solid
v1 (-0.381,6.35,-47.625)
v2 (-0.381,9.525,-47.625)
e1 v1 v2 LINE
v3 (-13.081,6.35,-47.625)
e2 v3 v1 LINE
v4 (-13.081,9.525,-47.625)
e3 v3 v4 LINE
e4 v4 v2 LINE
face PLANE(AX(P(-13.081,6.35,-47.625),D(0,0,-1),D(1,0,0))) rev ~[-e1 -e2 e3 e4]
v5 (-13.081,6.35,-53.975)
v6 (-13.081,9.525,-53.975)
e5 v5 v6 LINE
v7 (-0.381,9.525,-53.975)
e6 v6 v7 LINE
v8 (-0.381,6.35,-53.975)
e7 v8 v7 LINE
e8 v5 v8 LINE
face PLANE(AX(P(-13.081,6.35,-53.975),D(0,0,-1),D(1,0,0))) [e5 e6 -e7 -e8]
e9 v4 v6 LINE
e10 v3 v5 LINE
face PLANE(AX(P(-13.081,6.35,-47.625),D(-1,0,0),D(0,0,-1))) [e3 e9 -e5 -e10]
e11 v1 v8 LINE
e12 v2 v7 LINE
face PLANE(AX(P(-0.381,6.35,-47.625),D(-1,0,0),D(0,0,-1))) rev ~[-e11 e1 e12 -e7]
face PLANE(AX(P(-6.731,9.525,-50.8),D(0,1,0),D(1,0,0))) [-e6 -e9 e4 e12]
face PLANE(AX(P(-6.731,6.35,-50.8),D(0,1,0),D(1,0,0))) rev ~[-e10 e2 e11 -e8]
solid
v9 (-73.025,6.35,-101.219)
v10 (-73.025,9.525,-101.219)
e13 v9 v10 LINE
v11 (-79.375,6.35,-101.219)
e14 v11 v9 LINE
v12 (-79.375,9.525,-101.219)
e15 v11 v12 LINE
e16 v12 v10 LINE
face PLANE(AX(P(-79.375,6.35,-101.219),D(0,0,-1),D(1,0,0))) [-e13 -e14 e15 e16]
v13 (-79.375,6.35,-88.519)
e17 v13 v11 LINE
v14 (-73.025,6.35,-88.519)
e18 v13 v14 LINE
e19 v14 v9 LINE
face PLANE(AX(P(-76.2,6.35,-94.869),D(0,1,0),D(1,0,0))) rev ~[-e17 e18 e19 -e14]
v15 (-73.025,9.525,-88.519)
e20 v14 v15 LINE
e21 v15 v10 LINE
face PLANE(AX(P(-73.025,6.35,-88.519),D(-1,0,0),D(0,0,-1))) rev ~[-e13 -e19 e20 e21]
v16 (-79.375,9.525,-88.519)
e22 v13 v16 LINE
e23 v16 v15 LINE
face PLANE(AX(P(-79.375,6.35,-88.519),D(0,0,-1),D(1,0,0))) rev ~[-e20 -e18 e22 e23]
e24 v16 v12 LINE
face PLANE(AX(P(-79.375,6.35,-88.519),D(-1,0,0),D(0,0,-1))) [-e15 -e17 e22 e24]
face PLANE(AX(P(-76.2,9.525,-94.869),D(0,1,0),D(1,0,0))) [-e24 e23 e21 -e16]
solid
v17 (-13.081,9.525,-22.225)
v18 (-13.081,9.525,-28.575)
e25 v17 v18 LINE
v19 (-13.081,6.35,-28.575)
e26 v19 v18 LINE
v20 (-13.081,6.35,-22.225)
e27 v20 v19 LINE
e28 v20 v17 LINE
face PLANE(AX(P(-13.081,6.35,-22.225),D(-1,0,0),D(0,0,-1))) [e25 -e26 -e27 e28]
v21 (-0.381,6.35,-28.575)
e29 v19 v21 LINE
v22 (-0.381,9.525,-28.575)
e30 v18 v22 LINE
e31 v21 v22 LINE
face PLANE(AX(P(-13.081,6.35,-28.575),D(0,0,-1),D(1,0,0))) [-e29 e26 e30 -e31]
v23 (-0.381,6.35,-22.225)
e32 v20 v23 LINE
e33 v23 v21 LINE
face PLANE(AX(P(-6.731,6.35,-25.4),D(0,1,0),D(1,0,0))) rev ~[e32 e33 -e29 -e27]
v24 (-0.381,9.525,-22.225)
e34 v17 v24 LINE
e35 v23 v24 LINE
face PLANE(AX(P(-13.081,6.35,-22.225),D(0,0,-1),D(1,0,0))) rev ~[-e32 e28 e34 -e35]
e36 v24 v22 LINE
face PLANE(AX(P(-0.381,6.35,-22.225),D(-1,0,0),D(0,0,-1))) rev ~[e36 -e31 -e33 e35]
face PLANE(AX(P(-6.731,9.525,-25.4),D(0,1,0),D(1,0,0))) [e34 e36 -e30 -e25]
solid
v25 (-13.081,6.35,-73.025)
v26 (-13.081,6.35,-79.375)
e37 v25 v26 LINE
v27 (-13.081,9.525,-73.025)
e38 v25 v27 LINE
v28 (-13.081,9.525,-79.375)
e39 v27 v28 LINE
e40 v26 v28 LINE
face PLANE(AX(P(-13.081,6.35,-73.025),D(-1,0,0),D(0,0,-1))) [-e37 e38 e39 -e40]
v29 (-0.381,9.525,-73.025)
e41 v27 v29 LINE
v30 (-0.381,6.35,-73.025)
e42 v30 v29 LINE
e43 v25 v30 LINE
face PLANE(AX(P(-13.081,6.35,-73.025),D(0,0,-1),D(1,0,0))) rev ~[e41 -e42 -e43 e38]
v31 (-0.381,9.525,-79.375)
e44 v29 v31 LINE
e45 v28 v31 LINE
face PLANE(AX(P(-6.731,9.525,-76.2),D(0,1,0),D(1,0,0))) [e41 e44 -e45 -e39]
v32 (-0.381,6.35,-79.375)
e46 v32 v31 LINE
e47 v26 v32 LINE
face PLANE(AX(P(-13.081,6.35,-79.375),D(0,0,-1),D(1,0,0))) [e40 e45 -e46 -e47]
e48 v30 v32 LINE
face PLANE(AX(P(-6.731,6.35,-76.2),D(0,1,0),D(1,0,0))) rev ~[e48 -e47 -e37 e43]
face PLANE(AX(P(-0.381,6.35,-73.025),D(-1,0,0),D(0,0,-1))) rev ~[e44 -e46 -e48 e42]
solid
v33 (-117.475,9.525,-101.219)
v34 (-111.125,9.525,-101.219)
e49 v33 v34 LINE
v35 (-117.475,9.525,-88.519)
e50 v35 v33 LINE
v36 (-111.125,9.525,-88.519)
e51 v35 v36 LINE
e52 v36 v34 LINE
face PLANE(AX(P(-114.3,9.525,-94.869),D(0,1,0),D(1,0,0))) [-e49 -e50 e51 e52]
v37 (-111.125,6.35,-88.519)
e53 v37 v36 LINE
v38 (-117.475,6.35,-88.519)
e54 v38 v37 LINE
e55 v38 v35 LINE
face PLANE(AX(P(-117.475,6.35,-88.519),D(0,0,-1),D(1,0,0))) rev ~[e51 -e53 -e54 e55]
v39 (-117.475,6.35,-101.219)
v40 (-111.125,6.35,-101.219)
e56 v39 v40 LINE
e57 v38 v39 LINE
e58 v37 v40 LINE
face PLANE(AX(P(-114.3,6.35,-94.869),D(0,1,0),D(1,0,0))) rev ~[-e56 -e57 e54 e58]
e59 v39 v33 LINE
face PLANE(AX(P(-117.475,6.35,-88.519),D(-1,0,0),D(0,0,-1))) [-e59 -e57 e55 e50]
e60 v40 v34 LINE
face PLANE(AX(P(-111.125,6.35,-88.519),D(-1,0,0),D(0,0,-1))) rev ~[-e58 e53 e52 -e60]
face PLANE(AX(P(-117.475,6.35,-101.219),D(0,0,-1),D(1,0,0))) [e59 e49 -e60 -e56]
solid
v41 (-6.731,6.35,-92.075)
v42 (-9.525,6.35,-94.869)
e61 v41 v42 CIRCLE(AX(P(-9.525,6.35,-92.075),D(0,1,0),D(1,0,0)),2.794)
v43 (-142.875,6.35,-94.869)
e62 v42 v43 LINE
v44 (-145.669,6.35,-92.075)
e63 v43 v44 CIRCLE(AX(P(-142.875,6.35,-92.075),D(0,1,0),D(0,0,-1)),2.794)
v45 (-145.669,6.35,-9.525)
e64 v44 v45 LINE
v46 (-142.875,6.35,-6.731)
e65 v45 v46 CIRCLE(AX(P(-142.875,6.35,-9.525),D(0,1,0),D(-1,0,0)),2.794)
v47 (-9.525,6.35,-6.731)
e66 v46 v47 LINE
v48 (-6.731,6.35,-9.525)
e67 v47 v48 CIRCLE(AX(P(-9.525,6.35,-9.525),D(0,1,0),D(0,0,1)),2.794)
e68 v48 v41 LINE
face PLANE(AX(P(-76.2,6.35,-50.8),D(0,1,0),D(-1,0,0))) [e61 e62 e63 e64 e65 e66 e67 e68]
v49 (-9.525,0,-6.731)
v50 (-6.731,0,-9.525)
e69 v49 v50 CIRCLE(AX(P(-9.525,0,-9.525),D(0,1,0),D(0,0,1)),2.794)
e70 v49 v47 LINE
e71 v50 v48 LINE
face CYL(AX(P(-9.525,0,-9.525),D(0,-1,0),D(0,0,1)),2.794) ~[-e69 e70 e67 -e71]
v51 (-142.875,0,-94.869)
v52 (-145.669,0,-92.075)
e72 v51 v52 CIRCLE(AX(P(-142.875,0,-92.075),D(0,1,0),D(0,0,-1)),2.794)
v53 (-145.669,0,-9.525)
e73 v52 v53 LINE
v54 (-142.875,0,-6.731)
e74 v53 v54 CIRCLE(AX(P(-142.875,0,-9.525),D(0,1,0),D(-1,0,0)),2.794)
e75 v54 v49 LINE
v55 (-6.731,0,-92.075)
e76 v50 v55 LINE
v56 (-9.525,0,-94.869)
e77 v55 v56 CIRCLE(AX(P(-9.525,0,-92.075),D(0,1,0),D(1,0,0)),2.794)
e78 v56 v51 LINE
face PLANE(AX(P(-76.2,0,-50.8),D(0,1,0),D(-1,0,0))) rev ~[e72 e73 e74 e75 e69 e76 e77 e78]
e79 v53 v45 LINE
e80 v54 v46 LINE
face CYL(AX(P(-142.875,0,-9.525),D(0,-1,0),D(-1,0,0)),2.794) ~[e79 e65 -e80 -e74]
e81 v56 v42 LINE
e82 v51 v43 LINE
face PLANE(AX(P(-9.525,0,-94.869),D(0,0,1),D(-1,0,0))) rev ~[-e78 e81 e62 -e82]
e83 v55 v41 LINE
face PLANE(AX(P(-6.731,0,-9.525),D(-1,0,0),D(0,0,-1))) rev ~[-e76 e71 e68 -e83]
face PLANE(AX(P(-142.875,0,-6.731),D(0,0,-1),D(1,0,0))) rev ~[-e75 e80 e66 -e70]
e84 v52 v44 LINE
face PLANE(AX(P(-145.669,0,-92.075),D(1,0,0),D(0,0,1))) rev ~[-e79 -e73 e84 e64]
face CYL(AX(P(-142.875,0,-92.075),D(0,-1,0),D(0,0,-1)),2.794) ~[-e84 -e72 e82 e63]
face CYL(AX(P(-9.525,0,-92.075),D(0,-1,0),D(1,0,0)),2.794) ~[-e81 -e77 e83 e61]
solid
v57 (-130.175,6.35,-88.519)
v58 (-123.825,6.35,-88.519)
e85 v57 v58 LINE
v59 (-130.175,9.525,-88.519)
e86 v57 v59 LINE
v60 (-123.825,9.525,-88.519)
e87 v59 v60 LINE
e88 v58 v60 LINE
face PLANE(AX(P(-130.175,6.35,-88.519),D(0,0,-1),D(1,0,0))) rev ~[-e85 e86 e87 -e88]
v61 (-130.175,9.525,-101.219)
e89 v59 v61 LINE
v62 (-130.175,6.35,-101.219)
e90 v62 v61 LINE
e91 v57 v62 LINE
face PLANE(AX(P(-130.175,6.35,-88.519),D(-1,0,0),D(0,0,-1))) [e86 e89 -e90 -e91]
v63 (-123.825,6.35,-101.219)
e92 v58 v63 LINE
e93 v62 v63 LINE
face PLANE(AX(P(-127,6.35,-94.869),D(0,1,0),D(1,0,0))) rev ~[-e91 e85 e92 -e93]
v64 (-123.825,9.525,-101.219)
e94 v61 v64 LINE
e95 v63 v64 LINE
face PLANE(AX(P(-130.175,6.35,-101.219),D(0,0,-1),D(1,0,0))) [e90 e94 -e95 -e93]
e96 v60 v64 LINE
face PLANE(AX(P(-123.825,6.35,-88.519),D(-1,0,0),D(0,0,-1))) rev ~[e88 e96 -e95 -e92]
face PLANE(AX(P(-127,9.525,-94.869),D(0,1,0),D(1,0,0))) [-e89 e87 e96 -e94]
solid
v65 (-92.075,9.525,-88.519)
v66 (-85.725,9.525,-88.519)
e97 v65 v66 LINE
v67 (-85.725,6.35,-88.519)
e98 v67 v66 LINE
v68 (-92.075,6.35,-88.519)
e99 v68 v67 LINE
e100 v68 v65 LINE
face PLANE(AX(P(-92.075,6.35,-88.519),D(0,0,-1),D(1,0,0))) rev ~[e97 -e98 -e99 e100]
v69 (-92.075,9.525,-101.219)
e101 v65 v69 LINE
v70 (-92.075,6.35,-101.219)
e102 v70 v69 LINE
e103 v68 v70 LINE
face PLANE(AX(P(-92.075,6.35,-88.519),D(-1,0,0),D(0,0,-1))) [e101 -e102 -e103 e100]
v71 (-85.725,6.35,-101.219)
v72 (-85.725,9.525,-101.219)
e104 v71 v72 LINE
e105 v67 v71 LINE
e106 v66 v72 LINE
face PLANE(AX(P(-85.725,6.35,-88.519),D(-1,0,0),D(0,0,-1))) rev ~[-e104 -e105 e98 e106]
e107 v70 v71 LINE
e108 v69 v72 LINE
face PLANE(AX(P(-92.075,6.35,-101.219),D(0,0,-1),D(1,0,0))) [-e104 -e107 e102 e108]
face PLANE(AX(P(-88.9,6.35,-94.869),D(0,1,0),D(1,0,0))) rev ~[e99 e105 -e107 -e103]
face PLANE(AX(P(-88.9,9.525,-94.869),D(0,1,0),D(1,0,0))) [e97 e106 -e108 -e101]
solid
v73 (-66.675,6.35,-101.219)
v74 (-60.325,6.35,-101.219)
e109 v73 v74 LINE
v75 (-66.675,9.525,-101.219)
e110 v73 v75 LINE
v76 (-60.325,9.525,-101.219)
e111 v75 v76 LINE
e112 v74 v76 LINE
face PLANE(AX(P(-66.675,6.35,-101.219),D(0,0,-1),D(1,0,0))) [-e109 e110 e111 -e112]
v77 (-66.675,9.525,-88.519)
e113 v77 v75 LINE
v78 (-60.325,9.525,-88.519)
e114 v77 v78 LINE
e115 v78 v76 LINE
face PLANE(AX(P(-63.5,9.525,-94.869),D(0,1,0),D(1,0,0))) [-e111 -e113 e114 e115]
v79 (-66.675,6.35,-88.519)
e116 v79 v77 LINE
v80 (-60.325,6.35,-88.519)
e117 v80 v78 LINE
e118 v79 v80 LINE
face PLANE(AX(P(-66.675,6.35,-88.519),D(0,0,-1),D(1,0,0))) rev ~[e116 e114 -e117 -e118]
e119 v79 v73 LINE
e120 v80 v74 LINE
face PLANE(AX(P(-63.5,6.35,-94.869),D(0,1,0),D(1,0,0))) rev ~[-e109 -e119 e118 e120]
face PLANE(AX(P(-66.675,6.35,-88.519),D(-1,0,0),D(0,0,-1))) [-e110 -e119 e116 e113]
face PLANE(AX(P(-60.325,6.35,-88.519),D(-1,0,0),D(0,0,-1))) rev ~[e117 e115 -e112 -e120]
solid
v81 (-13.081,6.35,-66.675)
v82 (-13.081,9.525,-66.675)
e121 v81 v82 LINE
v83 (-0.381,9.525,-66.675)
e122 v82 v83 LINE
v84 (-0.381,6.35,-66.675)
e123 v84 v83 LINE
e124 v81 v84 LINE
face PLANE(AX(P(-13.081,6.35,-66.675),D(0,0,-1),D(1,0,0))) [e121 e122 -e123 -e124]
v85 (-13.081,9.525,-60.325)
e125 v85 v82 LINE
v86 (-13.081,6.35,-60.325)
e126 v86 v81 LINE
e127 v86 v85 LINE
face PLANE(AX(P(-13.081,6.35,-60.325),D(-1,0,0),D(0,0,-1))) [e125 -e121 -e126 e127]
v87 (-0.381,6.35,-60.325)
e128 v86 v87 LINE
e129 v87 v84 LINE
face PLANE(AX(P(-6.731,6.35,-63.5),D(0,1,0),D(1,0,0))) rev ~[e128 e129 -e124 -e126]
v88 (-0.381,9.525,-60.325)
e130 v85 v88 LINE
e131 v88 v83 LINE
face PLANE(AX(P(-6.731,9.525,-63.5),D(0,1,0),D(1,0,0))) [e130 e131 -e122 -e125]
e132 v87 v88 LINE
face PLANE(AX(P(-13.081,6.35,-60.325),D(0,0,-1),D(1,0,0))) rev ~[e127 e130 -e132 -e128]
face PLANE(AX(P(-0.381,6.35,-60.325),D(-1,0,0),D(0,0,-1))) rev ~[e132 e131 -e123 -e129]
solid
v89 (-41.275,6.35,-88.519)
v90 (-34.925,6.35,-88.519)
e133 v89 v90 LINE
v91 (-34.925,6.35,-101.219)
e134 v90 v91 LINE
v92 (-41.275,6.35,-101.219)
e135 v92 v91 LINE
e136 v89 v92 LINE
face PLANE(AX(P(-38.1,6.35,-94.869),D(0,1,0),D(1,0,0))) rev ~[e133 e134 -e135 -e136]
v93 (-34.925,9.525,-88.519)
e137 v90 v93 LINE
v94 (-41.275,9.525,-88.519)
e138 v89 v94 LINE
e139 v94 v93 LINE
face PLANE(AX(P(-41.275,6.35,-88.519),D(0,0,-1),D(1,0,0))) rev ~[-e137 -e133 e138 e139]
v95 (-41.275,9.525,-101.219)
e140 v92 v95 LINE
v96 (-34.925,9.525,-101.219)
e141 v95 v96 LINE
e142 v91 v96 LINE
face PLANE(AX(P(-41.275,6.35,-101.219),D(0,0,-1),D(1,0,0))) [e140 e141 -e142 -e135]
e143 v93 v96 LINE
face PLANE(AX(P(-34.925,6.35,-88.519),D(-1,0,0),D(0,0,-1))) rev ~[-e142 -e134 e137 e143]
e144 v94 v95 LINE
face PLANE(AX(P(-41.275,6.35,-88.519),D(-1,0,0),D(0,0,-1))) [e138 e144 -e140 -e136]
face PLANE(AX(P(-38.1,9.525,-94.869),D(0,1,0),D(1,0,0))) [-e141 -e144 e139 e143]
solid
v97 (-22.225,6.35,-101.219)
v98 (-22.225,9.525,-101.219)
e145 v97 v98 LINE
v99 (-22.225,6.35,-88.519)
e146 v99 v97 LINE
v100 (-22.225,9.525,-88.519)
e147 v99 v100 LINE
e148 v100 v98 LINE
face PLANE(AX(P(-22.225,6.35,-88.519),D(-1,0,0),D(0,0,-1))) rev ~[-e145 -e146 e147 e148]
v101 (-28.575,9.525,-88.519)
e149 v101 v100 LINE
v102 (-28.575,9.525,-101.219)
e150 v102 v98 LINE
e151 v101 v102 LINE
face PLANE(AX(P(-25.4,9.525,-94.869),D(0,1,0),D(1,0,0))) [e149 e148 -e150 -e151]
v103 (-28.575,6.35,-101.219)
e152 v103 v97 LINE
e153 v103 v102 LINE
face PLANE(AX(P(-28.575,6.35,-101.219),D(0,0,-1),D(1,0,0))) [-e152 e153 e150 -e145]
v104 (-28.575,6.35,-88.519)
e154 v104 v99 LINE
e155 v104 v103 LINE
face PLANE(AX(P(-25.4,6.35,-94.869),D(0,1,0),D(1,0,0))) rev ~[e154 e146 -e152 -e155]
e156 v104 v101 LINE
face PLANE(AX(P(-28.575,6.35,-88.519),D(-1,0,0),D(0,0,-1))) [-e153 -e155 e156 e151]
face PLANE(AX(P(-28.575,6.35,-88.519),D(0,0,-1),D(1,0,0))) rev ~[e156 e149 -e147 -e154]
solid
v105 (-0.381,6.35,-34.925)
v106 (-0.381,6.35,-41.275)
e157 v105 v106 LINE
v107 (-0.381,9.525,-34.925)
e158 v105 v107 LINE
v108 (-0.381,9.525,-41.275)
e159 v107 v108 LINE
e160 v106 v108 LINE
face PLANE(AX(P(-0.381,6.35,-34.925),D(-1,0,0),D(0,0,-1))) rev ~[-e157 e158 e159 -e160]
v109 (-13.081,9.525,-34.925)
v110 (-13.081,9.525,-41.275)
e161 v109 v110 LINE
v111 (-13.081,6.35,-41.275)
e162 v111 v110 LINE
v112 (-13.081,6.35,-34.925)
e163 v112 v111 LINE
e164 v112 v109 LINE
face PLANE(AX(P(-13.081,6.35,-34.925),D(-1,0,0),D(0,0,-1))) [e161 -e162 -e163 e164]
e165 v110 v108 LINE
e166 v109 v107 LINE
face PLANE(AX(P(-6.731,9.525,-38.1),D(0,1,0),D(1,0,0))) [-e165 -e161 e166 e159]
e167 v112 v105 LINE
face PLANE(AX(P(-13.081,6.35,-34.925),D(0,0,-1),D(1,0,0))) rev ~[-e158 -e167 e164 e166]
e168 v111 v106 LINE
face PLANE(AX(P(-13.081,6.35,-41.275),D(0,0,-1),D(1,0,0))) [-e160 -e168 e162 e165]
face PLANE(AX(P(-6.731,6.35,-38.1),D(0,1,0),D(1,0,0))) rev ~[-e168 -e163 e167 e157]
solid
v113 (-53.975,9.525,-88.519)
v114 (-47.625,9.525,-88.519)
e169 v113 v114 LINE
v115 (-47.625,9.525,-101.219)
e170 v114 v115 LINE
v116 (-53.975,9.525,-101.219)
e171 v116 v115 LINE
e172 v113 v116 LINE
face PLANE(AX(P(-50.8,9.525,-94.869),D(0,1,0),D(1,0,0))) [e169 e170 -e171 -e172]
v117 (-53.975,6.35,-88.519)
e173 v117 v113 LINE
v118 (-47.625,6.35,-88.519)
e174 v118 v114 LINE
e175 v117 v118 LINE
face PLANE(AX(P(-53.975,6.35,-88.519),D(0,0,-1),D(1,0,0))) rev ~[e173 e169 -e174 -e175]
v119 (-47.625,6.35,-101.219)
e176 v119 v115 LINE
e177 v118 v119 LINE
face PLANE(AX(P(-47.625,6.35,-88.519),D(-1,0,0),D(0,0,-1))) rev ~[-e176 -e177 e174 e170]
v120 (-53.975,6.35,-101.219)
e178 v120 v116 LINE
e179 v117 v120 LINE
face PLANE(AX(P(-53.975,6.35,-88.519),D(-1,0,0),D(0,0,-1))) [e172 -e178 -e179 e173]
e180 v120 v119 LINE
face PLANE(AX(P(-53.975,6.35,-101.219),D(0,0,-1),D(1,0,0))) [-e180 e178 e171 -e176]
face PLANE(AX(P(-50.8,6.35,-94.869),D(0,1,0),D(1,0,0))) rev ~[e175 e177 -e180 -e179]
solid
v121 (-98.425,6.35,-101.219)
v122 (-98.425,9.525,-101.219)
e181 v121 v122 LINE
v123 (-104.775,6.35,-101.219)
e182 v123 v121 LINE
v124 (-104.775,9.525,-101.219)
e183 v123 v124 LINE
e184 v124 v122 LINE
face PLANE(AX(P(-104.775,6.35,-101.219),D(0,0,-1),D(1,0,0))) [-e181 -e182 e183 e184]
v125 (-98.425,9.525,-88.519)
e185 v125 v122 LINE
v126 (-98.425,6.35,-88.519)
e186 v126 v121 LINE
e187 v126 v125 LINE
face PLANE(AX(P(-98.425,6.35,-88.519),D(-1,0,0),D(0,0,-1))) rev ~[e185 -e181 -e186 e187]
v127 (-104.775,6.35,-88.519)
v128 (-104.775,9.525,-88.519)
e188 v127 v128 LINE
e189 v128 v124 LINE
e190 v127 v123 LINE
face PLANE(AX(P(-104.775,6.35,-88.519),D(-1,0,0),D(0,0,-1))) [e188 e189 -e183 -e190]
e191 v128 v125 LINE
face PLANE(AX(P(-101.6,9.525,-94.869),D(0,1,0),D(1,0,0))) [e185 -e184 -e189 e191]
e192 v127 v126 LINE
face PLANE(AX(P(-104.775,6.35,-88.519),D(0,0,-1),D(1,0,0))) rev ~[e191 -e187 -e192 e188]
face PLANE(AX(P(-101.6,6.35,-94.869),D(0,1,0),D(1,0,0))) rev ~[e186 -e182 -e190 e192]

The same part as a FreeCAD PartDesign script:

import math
import FreeCAD as App
import Part
import Sketcher

V = App.Vector
Q = App.Units.Quantity

doc = App.newDocument("Part")
body = doc.addObject("PartDesign::Body", "Body")

# Sketch on XZ plane
sketch1 = body.newObject("Sketcher::SketchObject", "Sketch")
sketch1.AttachmentSupport = (doc.getObject("XZ_Plane"), [""])
sketch1.MapMode = "FlatFace"
sketch1.addGeometry([
    Part.LineSegment(V(-145.7, -92.1, 0), V(-145.7, -9.5, 0)),  # 0
    Part.ArcOfCircle(Part.Circle(V(-142.9, -9.5, 0), V(0, 0, 1), 2.8), math.radians(90), math.radians(180)),  # 1
    Part.LineSegment(V(-142.9, -6.7, 0), V(-9.5, -6.7, 0)),  # 2
    Part.ArcOfCircle(Part.Circle(V(-9.5, -9.5, 0), V(0, 0, 1), 2.8), math.radians(0), math.radians(90)),  # 3
    Part.LineSegment(V(-6.7, -9.5, 0), V(-6.7, -92.1, 0)),  # 4
    Part.ArcOfCircle(Part.Circle(V(-9.5, -92.1, 0), V(0, 0, 1), 2.8), math.radians(-90), math.radians(0)),  # 5
    Part.LineSegment(V(-9.5, -94.9, 0), V(-142.9, -94.9, 0)),  # 6
    Part.ArcOfCircle(Part.Circle(V(-142.9, -92.1, 0), V(0, 0, 1), 2.8), math.radians(180), math.radians(270)),  # 7
], False)
sketch1.addConstraint([
    Sketcher.Constraint("Tangent", 0, 2, 1, 2),
    Sketcher.Constraint("Tangent", 1, 1, 2, 1),
    Sketcher.Constraint("Tangent", 2, 2, 3, 2),
    Sketcher.Constraint("Tangent", 3, 1, 4, 1),
    Sketcher.Constraint("Tangent", 4, 2, 5, 2),
    Sketcher.Constraint("Tangent", 5, 1, 6, 1),
    Sketcher.Constraint("Tangent", 6, 2, 7, 2),
    Sketcher.Constraint("Tangent", 7, 1, 0, 1),
    Sketcher.Constraint("Vertical", 0),
    Sketcher.Constraint("Horizontal", 2),
    Sketcher.Constraint("Vertical", 4),
    Sketcher.Constraint("Horizontal", 6),
    Sketcher.Constraint("Equal", 1, 3),
    Sketcher.Constraint("Equal", 3, 5),
    Sketcher.Constraint("Equal", 5, 7),
    Sketcher.Constraint("Radius", 1, Q("0.11 in")),
    Sketcher.Constraint("DistanceX", 2, 1, 2, 2, Q("5.25 in")),
    Sketcher.Constraint("DistanceY", 0, 1, 0, 2, Q("3.25 in")),
    Sketcher.Constraint("DistanceX", 1, 3, -1, 1, Q("5.625 in")),
    Sketcher.Constraint("DistanceY", 1, 3, -1, 1, Q("0.375 in")),
])
pad1 = body.newObject("PartDesign::Pad", "Pad")
pad1.Profile = sketch1
pad1.Length = Q("0.25 in")
pad1.Reversed = True
body2 = doc.addObject("PartDesign::Body", "Body001")

# Sketch on XZ plane
sketch2 = body2.newObject("Sketcher::SketchObject", "Sketch001")
sketch2.AttachmentSupport = (doc.getObject("XZ_Plane001"), [""])
sketch2.MapMode = "FlatFace"
sketch2.AttachmentOffset = App.Placement(V(0, 0, -0.25 * 25.4), App.Rotation())
sketch2.addGeometry([
    Part.LineSegment(V(-67, -101, 0), V(-67, -89, 0)),
    Part.LineSegment(V(-67, -89, 0), V(-60, -89, 0)),
    Part.LineSegment(V(-60, -89, 0), V(-60, -101, 0)),
    Part.LineSegment(V(-60, -101, 0), V(-67, -101, 0)),
], False)
sketch2.addConstraint([
    Sketcher.Constraint("Coincident", 0, 2, 1, 1),
    Sketcher.Constraint("Coincident", 1, 2, 2, 1),
    Sketcher.Constraint("Coincident", 2, 2, 3, 1),
    Sketcher.Constraint("Coincident", 3, 2, 0, 1),
    Sketcher.Constraint("Vertical", 0),
    Sketcher.Constraint("Horizontal", 1),
    Sketcher.Constraint("Vertical", 2),
    Sketcher.Constraint("Horizontal", 3),
    Sketcher.Constraint("DistanceY", 0, 1, 0, 2, Q("0.5 in")),
    Sketcher.Constraint("DistanceX", 1, 1, 1, 2, Q("0.25 in")),
    Sketcher.Constraint("DistanceX", 0, 2, -1, 1, Q("2.625 in")),
    Sketcher.Constraint("DistanceY", 0, 2, -1, 1, Q("3.485 in")),
])
pad2 = body2.newObject("PartDesign::Pad", "Pad001")
pad2.Profile = sketch2
pad2.Length = Q("0.125 in")
pad2.Reversed = True
body3 = doc.addObject("PartDesign::Body", "Body002")

# Sketch on XZ plane
sketch3 = body3.newObject("Sketcher::SketchObject", "Sketch002")
sketch3.AttachmentSupport = (doc.getObject("XZ_Plane002"), [""])
sketch3.MapMode = "FlatFace"
sketch3.AttachmentOffset = App.Placement(V(0, 0, -0.25 * 25.4), App.Rotation())
sketch3.addGeometry([
    Part.LineSegment(V(-79, -101, 0), V(-79, -89, 0)),
    Part.LineSegment(V(-79, -89, 0), V(-73, -89, 0)),
    Part.LineSegment(V(-73, -89, 0), V(-73, -101, 0)),
    Part.LineSegment(V(-73, -101, 0), V(-79, -101, 0)),
], False)
sketch3.addConstraint([
    Sketcher.Constraint("Coincident", 0, 2, 1, 1),
    Sketcher.Constraint("Coincident", 1, 2, 2, 1),
    Sketcher.Constraint("Coincident", 2, 2, 3, 1),
    Sketcher.Constraint("Coincident", 3, 2, 0, 1),
    Sketcher.Constraint("Vertical", 0),
    Sketcher.Constraint("Horizontal", 1),
    Sketcher.Constraint("Vertical", 2),
    Sketcher.Constraint("Horizontal", 3),
    Sketcher.Constraint("DistanceY", 0, 1, 0, 2, Q("0.5 in")),
    Sketcher.Constraint("DistanceX", 1, 1, 1, 2, Q("0.25 in")),
    Sketcher.Constraint("DistanceX", 0, 2, -1, 1, Q("3.125 in")),
    Sketcher.Constraint("DistanceY", 0, 2, -1, 1, Q("3.485 in")),
])
pad3 = body3.newObject("PartDesign::Pad", "Pad002")
pad3.Profile = sketch3
pad3.Length = Q("0.125 in")
pad3.Reversed = True
body4 = doc.addObject("PartDesign::Body", "Body003")

# Sketch on XZ plane
sketch4 = body4.newObject("Sketcher::SketchObject", "Sketch003")
sketch4.AttachmentSupport = (doc.getObject("XZ_Plane003"), [""])
sketch4.MapMode = "FlatFace"
sketch4.AttachmentOffset = App.Placement(V(0, 0, -0.25 * 25.4), App.Rotation())
sketch4.addGeometry([
    Part.LineSegment(V(-54, -101, 0), V(-54, -89, 0)),
    Part.LineSegment(V(-54, -89, 0), V(-48, -89, 0)),
    Part.LineSegment(V(-48, -89, 0), V(-48, -101, 0)),
    Part.LineSegment(V(-48, -101, 0), V(-54, -101, 0)),
], False)
sketch4.addConstraint([
    Sketcher.Constraint("Coincident", 0, 2, 1, 1),
    Sketcher.Constraint("Coincident", 1, 2, 2, 1),
    Sketcher.Constraint("Coincident", 2, 2, 3, 1),
    Sketcher.Constraint("Coincident", 3, 2, 0, 1),
    Sketcher.Constraint("Vertical", 0),
    Sketcher.Constraint("Horizontal", 1),
    Sketcher.Constraint("Vertical", 2),
    Sketcher.Constraint("Horizontal", 3),
    Sketcher.Constraint("DistanceY", 0, 1, 0, 2, Q("0.5 in")),
    Sketcher.Constraint("DistanceX", 1, 1, 1, 2, Q("0.25 in")),
    Sketcher.Constraint("DistanceX", 0, 2, -1, 1, Q("2.125 in")),
    Sketcher.Constraint("DistanceY", 0, 2, -1, 1, Q("3.485 in")),
])
pad4 = body4.newObject("PartDesign::Pad", "Pad003")
pad4.Profile = sketch4
pad4.Length = Q("0.125 in")
pad4.Reversed = True
body5 = doc.addObject("PartDesign::Body", "Body004")

# Sketch on XZ plane
sketch5 = body5.newObject("Sketcher::SketchObject", "Sketch004")
sketch5.AttachmentSupport = (doc.getObject("XZ_Plane004"), [""])
sketch5.MapMode = "FlatFace"
sketch5.AttachmentOffset = App.Placement(V(0, 0, -0.25 * 25.4), App.Rotation())
sketch5.addGeometry([
    Part.LineSegment(V(-41, -101, 0), V(-41, -89, 0)),
    Part.LineSegment(V(-41, -89, 0), V(-35, -89, 0)),
    Part.LineSegment(V(-35, -89, 0), V(-35, -101, 0)),
    Part.LineSegment(V(-35, -101, 0), V(-41, -101, 0)),
], False)
sketch5.addConstraint([
    Sketcher.Constraint("Coincident", 0, 2, 1, 1),
    Sketcher.Constraint("Coincident", 1, 2, 2, 1),
    Sketcher.Constraint("Coincident", 2, 2, 3, 1),
    Sketcher.Constraint("Coincident", 3, 2, 0, 1),
    Sketcher.Constraint("Vertical", 0),
    Sketcher.Constraint("Horizontal", 1),
    Sketcher.Constraint("Vertical", 2),
    Sketcher.Constraint("Horizontal", 3),
    Sketcher.Constraint("DistanceY", 0, 1, 0, 2, Q("0.5 in")),
    Sketcher.Constraint("DistanceX", 1, 1, 1, 2, Q("0.25 in")),
    Sketcher.Constraint("DistanceX", 0, 2, -1, 1, Q("1.625 in")),
    Sketcher.Constraint("DistanceY", 0, 2, -1, 1, Q("3.485 in")),
])
pad5 = body5.newObject("PartDesign::Pad", "Pad004")
pad5.Profile = sketch5
pad5.Length = Q("0.125 in")
pad5.Reversed = True
body6 = doc.addObject("PartDesign::Body", "Body005")

# Sketch on XZ plane
sketch6 = body6.newObject("Sketcher::SketchObject", "Sketch005")
sketch6.AttachmentSupport = (doc.getObject("XZ_Plane005"), [""])
sketch6.MapMode = "FlatFace"
sketch6.AttachmentOffset = App.Placement(V(0, 0, -0.25 * 25.4), App.Rotation())
sketch6.addGeometry([
    Part.LineSegment(V(-29, -101, 0), V(-29, -89, 0)),
    Part.LineSegment(V(-29, -89, 0), V(-22, -89, 0)),
    Part.LineSegment(V(-22, -89, 0), V(-22, -101, 0)),
    Part.LineSegment(V(-22, -101, 0), V(-29, -101, 0)),
], False)
sketch6.addConstraint([
    Sketcher.Constraint("Coincident", 0, 2, 1, 1),
    Sketcher.Constraint("Coincident", 1, 2, 2, 1),
    Sketcher.Constraint("Coincident", 2, 2, 3, 1),
    Sketcher.Constraint("Coincident", 3, 2, 0, 1),
    Sketcher.Constraint("Vertical", 0),
    Sketcher.Constraint("Horizontal", 1),
    Sketcher.Constraint("Vertical", 2),
    Sketcher.Constraint("Horizontal", 3),
    Sketcher.Constraint("DistanceY", 0, 1, 0, 2, Q("0.5 in")),
    Sketcher.Constraint("DistanceX", 1, 1, 1, 2, Q("0.25 in")),
    Sketcher.Constraint("DistanceX", 0, 2, -1, 1, Q("1.125 in")),
    Sketcher.Constraint("DistanceY", 0, 2, -1, 1, Q("3.485 in")),
])
pad6 = body6.newObject("PartDesign::Pad", "Pad005")
pad6.Profile = sketch6
pad6.Length = Q("0.125 in")
pad6.Reversed = True
body7 = doc.addObject("PartDesign::Body", "Body006")

# Sketch on XZ plane
sketch7 = body7.newObject("Sketcher::SketchObject", "Sketch006")
sketch7.AttachmentSupport = (doc.getObject("XZ_Plane006"), [""])
sketch7.MapMode = "FlatFace"
sketch7.AttachmentOffset = App.Placement(V(0, 0, -0.25 * 25.4), App.Rotation())
sketch7.addGeometry([
    Part.LineSegment(V(-92, -101, 0), V(-92, -89, 0)),
    Part.LineSegment(V(-92, -89, 0), V(-86, -89, 0)),
    Part.LineSegment(V(-86, -89, 0), V(-86, -101, 0)),
    Part.LineSegment(V(-86, -101, 0), V(-92, -101, 0)),
], False)
sketch7.addConstraint([
    Sketcher.Constraint("Coincident", 0, 2, 1, 1),
    Sketcher.Constraint("Coincident", 1, 2, 2, 1),
    Sketcher.Constraint("Coincident", 2, 2, 3, 1),
    Sketcher.Constraint("Coincident", 3, 2, 0, 1),
    Sketcher.Constraint("Vertical", 0),
    Sketcher.Constraint("Horizontal", 1),
    Sketcher.Constraint("Vertical", 2),
    Sketcher.Constraint("Horizontal", 3),
    Sketcher.Constraint("DistanceY", 0, 1, 0, 2, Q("0.5 in")),
    Sketcher.Constraint("DistanceX", 1, 1, 1, 2, Q("0.25 in")),
    Sketcher.Constraint("DistanceX", 0, 2, -1, 1, Q("3.625 in")),
    Sketcher.Constraint("DistanceY", 0, 2, -1, 1, Q("3.485 in")),
])
pad7 = body7.newObject("PartDesign::Pad", "Pad006")
pad7.Profile = sketch7
pad7.Length = Q("0.125 in")
pad7.Reversed = True
body8 = doc.addObject("PartDesign::Body", "Body007")

# Sketch on XZ plane
sketch8 = body8.newObject("Sketcher::SketchObject", "Sketch007")
sketch8.AttachmentSupport = (doc.getObject("XZ_Plane007"), [""])
sketch8.MapMode = "FlatFace"
sketch8.AttachmentOffset = App.Placement(V(0, 0, -0.25 * 25.4), App.Rotation())
sketch8.addGeometry([
    Part.LineSegment(V(-105, -101, 0), V(-105, -89, 0)),
    Part.LineSegment(V(-105, -89, 0), V(-98, -89, 0)),
    Part.LineSegment(V(-98, -89, 0), V(-98, -101, 0)),
    Part.LineSegment(V(-98, -101, 0), V(-105, -101, 0)),
], False)
sketch8.addConstraint([
    Sketcher.Constraint("Coincident", 0, 2, 1, 1),
    Sketcher.Constraint("Coincident", 1, 2, 2, 1),
    Sketcher.Constraint("Coincident", 2, 2, 3, 1),
    Sketcher.Constraint("Coincident", 3, 2, 0, 1),
    Sketcher.Constraint("Vertical", 0),
    Sketcher.Constraint("Horizontal", 1),
    Sketcher.Constraint("Vertical", 2),
    Sketcher.Constraint("Horizontal", 3),
    Sketcher.Constraint("DistanceY", 0, 1, 0, 2, Q("0.5 in")),
    Sketcher.Constraint("DistanceX", 1, 1, 1, 2, Q("0.25 in")),
    Sketcher.Constraint("DistanceX", 0, 2, -1, 1, Q("4.125 in")),
    Sketcher.Constraint("DistanceY", 0, 2, -1, 1, Q("3.485 in")),
])
pad8 = body8.newObject("PartDesign::Pad", "Pad007")
pad8.Profile = sketch8
pad8.Length = Q("0.125 in")
pad8.Reversed = True
body9 = doc.addObject("PartDesign::Body", "Body008")

# Sketch on XZ plane
sketch9 = body9.newObject("Sketcher::SketchObject", "Sketch008")
sketch9.AttachmentSupport = (doc.getObject("XZ_Plane008"), [""])
sketch9.MapMode = "FlatFace"
sketch9.AttachmentOffset = App.Placement(V(0, 0, -0.25 * 25.4), App.Rotation())
sketch9.addGeometry([
    Part.LineSegment(V(-117, -101, 0), V(-117, -89, 0)),
    Part.LineSegment(V(-117, -89, 0), V(-111, -89, 0)),
    Part.LineSegment(V(-111, -89, 0), V(-111, -101, 0)),
    Part.LineSegment(V(-111, -101, 0), V(-117, -101, 0)),
], False)
sketch9.addConstraint([
    Sketcher.Constraint("Coincident", 0, 2, 1, 1),
    Sketcher.Constraint("Coincident", 1, 2, 2, 1),
    Sketcher.Constraint("Coincident", 2, 2, 3, 1),
    Sketcher.Constraint("Coincident", 3, 2, 0, 1),
    Sketcher.Constraint("Vertical", 0),
    Sketcher.Constraint("Horizontal", 1),
    Sketcher.Constraint("Vertical", 2),
    Sketcher.Constraint("Horizontal", 3),
    Sketcher.Constraint("DistanceY", 0, 1, 0, 2, Q("0.5 in")),
    Sketcher.Constraint("DistanceX", 1, 1, 1, 2, Q("0.25 in")),
    Sketcher.Constraint("DistanceX", 0, 2, -1, 1, Q("4.625 in")),
    Sketcher.Constraint("DistanceY", 0, 2, -1, 1, Q("3.485 in")),
])
pad9 = body9.newObject("PartDesign::Pad", "Pad008")
pad9.Profile = sketch9
pad9.Length = Q("0.125 in")
pad9.Reversed = True
body10 = doc.addObject("PartDesign::Body", "Body009")

# Sketch on XZ plane
sketch10 = body10.newObject("Sketcher::SketchObject", "Sketch009")
sketch10.AttachmentSupport = (doc.getObject("XZ_Plane009"), [""])
sketch10.MapMode = "FlatFace"
sketch10.AttachmentOffset = App.Placement(V(0, 0, -0.25 * 25.4), App.Rotation())
sketch10.addGeometry([
    Part.LineSegment(V(-130, -101, 0), V(-130, -89, 0)),
    Part.LineSegment(V(-130, -89, 0), V(-124, -89, 0)),
    Part.LineSegment(V(-124, -89, 0), V(-124, -101, 0)),
    Part.LineSegment(V(-124, -101, 0), V(-130, -101, 0)),
], False)
sketch10.addConstraint([
    Sketcher.Constraint("Coincident", 0, 2, 1, 1),
    Sketcher.Constraint("Coincident", 1, 2, 2, 1),
    Sketcher.Constraint("Coincident", 2, 2, 3, 1),
    Sketcher.Constraint("Coincident", 3, 2, 0, 1),
    Sketcher.Constraint("Vertical", 0),
    Sketcher.Constraint("Horizontal", 1),
    Sketcher.Constraint("Vertical", 2),
    Sketcher.Constraint("Horizontal", 3),
    Sketcher.Constraint("DistanceY", 0, 1, 0, 2, Q("0.5 in")),
    Sketcher.Constraint("DistanceX", 1, 1, 1, 2, Q("0.25 in")),
    Sketcher.Constraint("DistanceX", 0, 2, -1, 1, Q("5.125 in")),
    Sketcher.Constraint("DistanceY", 0, 2, -1, 1, Q("3.485 in")),
])
pad10 = body10.newObject("PartDesign::Pad", "Pad009")
pad10.Profile = sketch10
pad10.Length = Q("0.125 in")
pad10.Reversed = True
body11 = doc.addObject("PartDesign::Body", "Body010")

# Sketch on XZ plane
sketch11 = body11.newObject("Sketcher::SketchObject", "Sketch010")
sketch11.AttachmentSupport = (doc.getObject("XZ_Plane010"), [""])
sketch11.MapMode = "FlatFace"
sketch11.AttachmentOffset = App.Placement(V(0, 0, -0.25 * 25.4), App.Rotation())
sketch11.addGeometry([
    Part.LineSegment(V(-13, -54, 0), V(-13, -48, 0)),
    Part.LineSegment(V(-13, -48, 0), V(0, -48, 0)),
    Part.LineSegment(V(0, -48, 0), V(0, -54, 0)),
    Part.LineSegment(V(0, -54, 0), V(-13, -54, 0)),
], False)
sketch11.addConstraint([
    Sketcher.Constraint("Coincident", 0, 2, 1, 1),
    Sketcher.Constraint("Coincident", 1, 2, 2, 1),
    Sketcher.Constraint("Coincident", 2, 2, 3, 1),
    Sketcher.Constraint("Coincident", 3, 2, 0, 1),
    Sketcher.Constraint("Vertical", 0),
    Sketcher.Constraint("Horizontal", 1),
    Sketcher.Constraint("Vertical", 2),
    Sketcher.Constraint("Horizontal", 3),
    Sketcher.Constraint("DistanceX", 1, 1, 1, 2, Q("0.5 in")),
    Sketcher.Constraint("DistanceY", 0, 1, 0, 2, Q("0.25 in")),
    Sketcher.Constraint("DistanceX", 0, 2, -1, 1, Q("0.515 in")),
    Sketcher.Constraint("DistanceY", 0, 2, -1, 1, Q("1.875 in")),
])
pad11 = body11.newObject("PartDesign::Pad", "Pad010")
pad11.Profile = sketch11
pad11.Length = Q("0.125 in")
pad11.Reversed = True
body12 = doc.addObject("PartDesign::Body", "Body011")

# Sketch on XZ plane
sketch12 = body12.newObject("Sketcher::SketchObject", "Sketch011")
sketch12.AttachmentSupport = (doc.getObject("XZ_Plane011"), [""])
sketch12.MapMode = "FlatFace"
sketch12.AttachmentOffset = App.Placement(V(0, 0, -0.25 * 25.4), App.Rotation())
sketch12.addGeometry([
    Part.LineSegment(V(-13, -67, 0), V(-13, -60, 0)),
    Part.LineSegment(V(-13, -60, 0), V(0, -60, 0)),
    Part.LineSegment(V(0, -60, 0), V(0, -67, 0)),
    Part.LineSegment(V(0, -67, 0), V(-13, -67, 0)),
], False)
sketch12.addConstraint([
    Sketcher.Constraint("Coincident", 0, 2, 1, 1),
    Sketcher.Constraint("Coincident", 1, 2, 2, 1),
    Sketcher.Constraint("Coincident", 2, 2, 3, 1),
    Sketcher.Constraint("Coincident", 3, 2, 0, 1),
    Sketcher.Constraint("Vertical", 0),
    Sketcher.Constraint("Horizontal", 1),
    Sketcher.Constraint("Vertical", 2),
    Sketcher.Constraint("Horizontal", 3),
    Sketcher.Constraint("DistanceX", 1, 1, 1, 2, Q("0.5 in")),
    Sketcher.Constraint("DistanceY", 0, 1, 0, 2, Q("0.25 in")),
    Sketcher.Constraint("DistanceX", 0, 2, -1, 1, Q("0.515 in")),
    Sketcher.Constraint("DistanceY", 0, 2, -1, 1, Q("2.375 in")),
])
pad12 = body12.newObject("PartDesign::Pad", "Pad011")
pad12.Profile = sketch12
pad12.Length = Q("0.125 in")
pad12.Reversed = True
body13 = doc.addObject("PartDesign::Body", "Body012")

# Sketch on XZ plane
sketch13 = body13.newObject("Sketcher::SketchObject", "Sketch012")
sketch13.AttachmentSupport = (doc.getObject("XZ_Plane012"), [""])
sketch13.MapMode = "FlatFace"
sketch13.AttachmentOffset = App.Placement(V(0, 0, -0.25 * 25.4), App.Rotation())
sketch13.addGeometry([
    Part.LineSegment(V(-13, -79, 0), V(-13, -73, 0)),
    Part.LineSegment(V(-13, -73, 0), V(0, -73, 0)),
    Part.LineSegment(V(0, -73, 0), V(0, -79, 0)),
    Part.LineSegment(V(0, -79, 0), V(-13, -79, 0)),
], False)
sketch13.addConstraint([
    Sketcher.Constraint("Coincident", 0, 2, 1, 1),
    Sketcher.Constraint("Coincident", 1, 2, 2, 1),
    Sketcher.Constraint("Coincident", 2, 2, 3, 1),
    Sketcher.Constraint("Coincident", 3, 2, 0, 1),
    Sketcher.Constraint("Vertical", 0),
    Sketcher.Constraint("Horizontal", 1),
    Sketcher.Constraint("Vertical", 2),
    Sketcher.Constraint("Horizontal", 3),
    Sketcher.Constraint("DistanceX", 1, 1, 1, 2, Q("0.5 in")),
    Sketcher.Constraint("DistanceY", 0, 1, 0, 2, Q("0.25 in")),
    Sketcher.Constraint("DistanceX", 0, 2, -1, 1, Q("0.515 in")),
    Sketcher.Constraint("DistanceY", 0, 2, -1, 1, Q("2.875 in")),
])
pad13 = body13.newObject("PartDesign::Pad", "Pad012")
pad13.Profile = sketch13
pad13.Length = Q("0.125 in")
pad13.Reversed = True
body14 = doc.addObject("PartDesign::Body", "Body013")

# Sketch on XZ plane
sketch14 = body14.newObject("Sketcher::SketchObject", "Sketch013")
sketch14.AttachmentSupport = (doc.getObject("XZ_Plane013"), [""])
sketch14.MapMode = "FlatFace"
sketch14.AttachmentOffset = App.Placement(V(0, 0, -0.25 * 25.4), App.Rotation())
sketch14.addGeometry([
    Part.LineSegment(V(-13, -41, 0), V(-13, -35, 0)),
    Part.LineSegment(V(-13, -35, 0), V(0, -35, 0)),
    Part.LineSegment(V(0, -35, 0), V(0, -41, 0)),
    Part.LineSegment(V(0, -41, 0), V(-13, -41, 0)),
], False)
sketch14.addConstraint([
    Sketcher.Constraint("Coincident", 0, 2, 1, 1),
    Sketcher.Constraint("Coincident", 1, 2, 2, 1),
    Sketcher.Constraint("Coincident", 2, 2, 3, 1),
    Sketcher.Constraint("Coincident", 3, 2, 0, 1),
    Sketcher.Constraint("Vertical", 0),
    Sketcher.Constraint("Horizontal", 1),
    Sketcher.Constraint("Vertical", 2),
    Sketcher.Constraint("Horizontal", 3),
    Sketcher.Constraint("DistanceX", 1, 1, 1, 2, Q("0.5 in")),
    Sketcher.Constraint("DistanceY", 0, 1, 0, 2, Q("0.25 in")),
    Sketcher.Constraint("DistanceX", 0, 2, -1, 1, Q("0.515 in")),
    Sketcher.Constraint("DistanceY", 0, 2, -1, 1, Q("1.375 in")),
])
pad14 = body14.newObject("PartDesign::Pad", "Pad013")
pad14.Profile = sketch14
pad14.Length = Q("0.125 in")
pad14.Reversed = True
body15 = doc.addObject("PartDesign::Body", "Body014")

# Sketch on XZ plane
sketch15 = body15.newObject("Sketcher::SketchObject", "Sketch014")
sketch15.AttachmentSupport = (doc.getObject("XZ_Plane014"), [""])
sketch15.MapMode = "FlatFace"
sketch15.AttachmentOffset = App.Placement(V(0, 0, -0.25 * 25.4), App.Rotation())
sketch15.addGeometry([
    Part.LineSegment(V(-13, -29, 0), V(-13, -22, 0)),
    Part.LineSegment(V(-13, -22, 0), V(0, -22, 0)),
    Part.LineSegment(V(0, -22, 0), V(0, -29, 0)),
    Part.LineSegment(V(0, -29, 0), V(-13, -29, 0)),
], False)
sketch15.addConstraint([
    Sketcher.Constraint("Coincident", 0, 2, 1, 1),
    Sketcher.Constraint("Coincident", 1, 2, 2, 1),
    Sketcher.Constraint("Coincident", 2, 2, 3, 1),
    Sketcher.Constraint("Coincident", 3, 2, 0, 1),
    Sketcher.Constraint("Vertical", 0),
    Sketcher.Constraint("Horizontal", 1),
    Sketcher.Constraint("Vertical", 2),
    Sketcher.Constraint("Horizontal", 3),
    Sketcher.Constraint("DistanceX", 1, 1, 1, 2, Q("0.5 in")),
    Sketcher.Constraint("DistanceY", 0, 1, 0, 2, Q("0.25 in")),
    Sketcher.Constraint("DistanceX", 0, 2, -1, 1, Q("0.515 in")),
    Sketcher.Constraint("DistanceY", 0, 2, -1, 1, Q("0.875 in")),
])
pad15 = body15.newObject("PartDesign::Pad", "Pad014")
pad15.Profile = sketch15
pad15.Length = Q("0.125 in")
pad15.Reversed = True

doc.recompute()
